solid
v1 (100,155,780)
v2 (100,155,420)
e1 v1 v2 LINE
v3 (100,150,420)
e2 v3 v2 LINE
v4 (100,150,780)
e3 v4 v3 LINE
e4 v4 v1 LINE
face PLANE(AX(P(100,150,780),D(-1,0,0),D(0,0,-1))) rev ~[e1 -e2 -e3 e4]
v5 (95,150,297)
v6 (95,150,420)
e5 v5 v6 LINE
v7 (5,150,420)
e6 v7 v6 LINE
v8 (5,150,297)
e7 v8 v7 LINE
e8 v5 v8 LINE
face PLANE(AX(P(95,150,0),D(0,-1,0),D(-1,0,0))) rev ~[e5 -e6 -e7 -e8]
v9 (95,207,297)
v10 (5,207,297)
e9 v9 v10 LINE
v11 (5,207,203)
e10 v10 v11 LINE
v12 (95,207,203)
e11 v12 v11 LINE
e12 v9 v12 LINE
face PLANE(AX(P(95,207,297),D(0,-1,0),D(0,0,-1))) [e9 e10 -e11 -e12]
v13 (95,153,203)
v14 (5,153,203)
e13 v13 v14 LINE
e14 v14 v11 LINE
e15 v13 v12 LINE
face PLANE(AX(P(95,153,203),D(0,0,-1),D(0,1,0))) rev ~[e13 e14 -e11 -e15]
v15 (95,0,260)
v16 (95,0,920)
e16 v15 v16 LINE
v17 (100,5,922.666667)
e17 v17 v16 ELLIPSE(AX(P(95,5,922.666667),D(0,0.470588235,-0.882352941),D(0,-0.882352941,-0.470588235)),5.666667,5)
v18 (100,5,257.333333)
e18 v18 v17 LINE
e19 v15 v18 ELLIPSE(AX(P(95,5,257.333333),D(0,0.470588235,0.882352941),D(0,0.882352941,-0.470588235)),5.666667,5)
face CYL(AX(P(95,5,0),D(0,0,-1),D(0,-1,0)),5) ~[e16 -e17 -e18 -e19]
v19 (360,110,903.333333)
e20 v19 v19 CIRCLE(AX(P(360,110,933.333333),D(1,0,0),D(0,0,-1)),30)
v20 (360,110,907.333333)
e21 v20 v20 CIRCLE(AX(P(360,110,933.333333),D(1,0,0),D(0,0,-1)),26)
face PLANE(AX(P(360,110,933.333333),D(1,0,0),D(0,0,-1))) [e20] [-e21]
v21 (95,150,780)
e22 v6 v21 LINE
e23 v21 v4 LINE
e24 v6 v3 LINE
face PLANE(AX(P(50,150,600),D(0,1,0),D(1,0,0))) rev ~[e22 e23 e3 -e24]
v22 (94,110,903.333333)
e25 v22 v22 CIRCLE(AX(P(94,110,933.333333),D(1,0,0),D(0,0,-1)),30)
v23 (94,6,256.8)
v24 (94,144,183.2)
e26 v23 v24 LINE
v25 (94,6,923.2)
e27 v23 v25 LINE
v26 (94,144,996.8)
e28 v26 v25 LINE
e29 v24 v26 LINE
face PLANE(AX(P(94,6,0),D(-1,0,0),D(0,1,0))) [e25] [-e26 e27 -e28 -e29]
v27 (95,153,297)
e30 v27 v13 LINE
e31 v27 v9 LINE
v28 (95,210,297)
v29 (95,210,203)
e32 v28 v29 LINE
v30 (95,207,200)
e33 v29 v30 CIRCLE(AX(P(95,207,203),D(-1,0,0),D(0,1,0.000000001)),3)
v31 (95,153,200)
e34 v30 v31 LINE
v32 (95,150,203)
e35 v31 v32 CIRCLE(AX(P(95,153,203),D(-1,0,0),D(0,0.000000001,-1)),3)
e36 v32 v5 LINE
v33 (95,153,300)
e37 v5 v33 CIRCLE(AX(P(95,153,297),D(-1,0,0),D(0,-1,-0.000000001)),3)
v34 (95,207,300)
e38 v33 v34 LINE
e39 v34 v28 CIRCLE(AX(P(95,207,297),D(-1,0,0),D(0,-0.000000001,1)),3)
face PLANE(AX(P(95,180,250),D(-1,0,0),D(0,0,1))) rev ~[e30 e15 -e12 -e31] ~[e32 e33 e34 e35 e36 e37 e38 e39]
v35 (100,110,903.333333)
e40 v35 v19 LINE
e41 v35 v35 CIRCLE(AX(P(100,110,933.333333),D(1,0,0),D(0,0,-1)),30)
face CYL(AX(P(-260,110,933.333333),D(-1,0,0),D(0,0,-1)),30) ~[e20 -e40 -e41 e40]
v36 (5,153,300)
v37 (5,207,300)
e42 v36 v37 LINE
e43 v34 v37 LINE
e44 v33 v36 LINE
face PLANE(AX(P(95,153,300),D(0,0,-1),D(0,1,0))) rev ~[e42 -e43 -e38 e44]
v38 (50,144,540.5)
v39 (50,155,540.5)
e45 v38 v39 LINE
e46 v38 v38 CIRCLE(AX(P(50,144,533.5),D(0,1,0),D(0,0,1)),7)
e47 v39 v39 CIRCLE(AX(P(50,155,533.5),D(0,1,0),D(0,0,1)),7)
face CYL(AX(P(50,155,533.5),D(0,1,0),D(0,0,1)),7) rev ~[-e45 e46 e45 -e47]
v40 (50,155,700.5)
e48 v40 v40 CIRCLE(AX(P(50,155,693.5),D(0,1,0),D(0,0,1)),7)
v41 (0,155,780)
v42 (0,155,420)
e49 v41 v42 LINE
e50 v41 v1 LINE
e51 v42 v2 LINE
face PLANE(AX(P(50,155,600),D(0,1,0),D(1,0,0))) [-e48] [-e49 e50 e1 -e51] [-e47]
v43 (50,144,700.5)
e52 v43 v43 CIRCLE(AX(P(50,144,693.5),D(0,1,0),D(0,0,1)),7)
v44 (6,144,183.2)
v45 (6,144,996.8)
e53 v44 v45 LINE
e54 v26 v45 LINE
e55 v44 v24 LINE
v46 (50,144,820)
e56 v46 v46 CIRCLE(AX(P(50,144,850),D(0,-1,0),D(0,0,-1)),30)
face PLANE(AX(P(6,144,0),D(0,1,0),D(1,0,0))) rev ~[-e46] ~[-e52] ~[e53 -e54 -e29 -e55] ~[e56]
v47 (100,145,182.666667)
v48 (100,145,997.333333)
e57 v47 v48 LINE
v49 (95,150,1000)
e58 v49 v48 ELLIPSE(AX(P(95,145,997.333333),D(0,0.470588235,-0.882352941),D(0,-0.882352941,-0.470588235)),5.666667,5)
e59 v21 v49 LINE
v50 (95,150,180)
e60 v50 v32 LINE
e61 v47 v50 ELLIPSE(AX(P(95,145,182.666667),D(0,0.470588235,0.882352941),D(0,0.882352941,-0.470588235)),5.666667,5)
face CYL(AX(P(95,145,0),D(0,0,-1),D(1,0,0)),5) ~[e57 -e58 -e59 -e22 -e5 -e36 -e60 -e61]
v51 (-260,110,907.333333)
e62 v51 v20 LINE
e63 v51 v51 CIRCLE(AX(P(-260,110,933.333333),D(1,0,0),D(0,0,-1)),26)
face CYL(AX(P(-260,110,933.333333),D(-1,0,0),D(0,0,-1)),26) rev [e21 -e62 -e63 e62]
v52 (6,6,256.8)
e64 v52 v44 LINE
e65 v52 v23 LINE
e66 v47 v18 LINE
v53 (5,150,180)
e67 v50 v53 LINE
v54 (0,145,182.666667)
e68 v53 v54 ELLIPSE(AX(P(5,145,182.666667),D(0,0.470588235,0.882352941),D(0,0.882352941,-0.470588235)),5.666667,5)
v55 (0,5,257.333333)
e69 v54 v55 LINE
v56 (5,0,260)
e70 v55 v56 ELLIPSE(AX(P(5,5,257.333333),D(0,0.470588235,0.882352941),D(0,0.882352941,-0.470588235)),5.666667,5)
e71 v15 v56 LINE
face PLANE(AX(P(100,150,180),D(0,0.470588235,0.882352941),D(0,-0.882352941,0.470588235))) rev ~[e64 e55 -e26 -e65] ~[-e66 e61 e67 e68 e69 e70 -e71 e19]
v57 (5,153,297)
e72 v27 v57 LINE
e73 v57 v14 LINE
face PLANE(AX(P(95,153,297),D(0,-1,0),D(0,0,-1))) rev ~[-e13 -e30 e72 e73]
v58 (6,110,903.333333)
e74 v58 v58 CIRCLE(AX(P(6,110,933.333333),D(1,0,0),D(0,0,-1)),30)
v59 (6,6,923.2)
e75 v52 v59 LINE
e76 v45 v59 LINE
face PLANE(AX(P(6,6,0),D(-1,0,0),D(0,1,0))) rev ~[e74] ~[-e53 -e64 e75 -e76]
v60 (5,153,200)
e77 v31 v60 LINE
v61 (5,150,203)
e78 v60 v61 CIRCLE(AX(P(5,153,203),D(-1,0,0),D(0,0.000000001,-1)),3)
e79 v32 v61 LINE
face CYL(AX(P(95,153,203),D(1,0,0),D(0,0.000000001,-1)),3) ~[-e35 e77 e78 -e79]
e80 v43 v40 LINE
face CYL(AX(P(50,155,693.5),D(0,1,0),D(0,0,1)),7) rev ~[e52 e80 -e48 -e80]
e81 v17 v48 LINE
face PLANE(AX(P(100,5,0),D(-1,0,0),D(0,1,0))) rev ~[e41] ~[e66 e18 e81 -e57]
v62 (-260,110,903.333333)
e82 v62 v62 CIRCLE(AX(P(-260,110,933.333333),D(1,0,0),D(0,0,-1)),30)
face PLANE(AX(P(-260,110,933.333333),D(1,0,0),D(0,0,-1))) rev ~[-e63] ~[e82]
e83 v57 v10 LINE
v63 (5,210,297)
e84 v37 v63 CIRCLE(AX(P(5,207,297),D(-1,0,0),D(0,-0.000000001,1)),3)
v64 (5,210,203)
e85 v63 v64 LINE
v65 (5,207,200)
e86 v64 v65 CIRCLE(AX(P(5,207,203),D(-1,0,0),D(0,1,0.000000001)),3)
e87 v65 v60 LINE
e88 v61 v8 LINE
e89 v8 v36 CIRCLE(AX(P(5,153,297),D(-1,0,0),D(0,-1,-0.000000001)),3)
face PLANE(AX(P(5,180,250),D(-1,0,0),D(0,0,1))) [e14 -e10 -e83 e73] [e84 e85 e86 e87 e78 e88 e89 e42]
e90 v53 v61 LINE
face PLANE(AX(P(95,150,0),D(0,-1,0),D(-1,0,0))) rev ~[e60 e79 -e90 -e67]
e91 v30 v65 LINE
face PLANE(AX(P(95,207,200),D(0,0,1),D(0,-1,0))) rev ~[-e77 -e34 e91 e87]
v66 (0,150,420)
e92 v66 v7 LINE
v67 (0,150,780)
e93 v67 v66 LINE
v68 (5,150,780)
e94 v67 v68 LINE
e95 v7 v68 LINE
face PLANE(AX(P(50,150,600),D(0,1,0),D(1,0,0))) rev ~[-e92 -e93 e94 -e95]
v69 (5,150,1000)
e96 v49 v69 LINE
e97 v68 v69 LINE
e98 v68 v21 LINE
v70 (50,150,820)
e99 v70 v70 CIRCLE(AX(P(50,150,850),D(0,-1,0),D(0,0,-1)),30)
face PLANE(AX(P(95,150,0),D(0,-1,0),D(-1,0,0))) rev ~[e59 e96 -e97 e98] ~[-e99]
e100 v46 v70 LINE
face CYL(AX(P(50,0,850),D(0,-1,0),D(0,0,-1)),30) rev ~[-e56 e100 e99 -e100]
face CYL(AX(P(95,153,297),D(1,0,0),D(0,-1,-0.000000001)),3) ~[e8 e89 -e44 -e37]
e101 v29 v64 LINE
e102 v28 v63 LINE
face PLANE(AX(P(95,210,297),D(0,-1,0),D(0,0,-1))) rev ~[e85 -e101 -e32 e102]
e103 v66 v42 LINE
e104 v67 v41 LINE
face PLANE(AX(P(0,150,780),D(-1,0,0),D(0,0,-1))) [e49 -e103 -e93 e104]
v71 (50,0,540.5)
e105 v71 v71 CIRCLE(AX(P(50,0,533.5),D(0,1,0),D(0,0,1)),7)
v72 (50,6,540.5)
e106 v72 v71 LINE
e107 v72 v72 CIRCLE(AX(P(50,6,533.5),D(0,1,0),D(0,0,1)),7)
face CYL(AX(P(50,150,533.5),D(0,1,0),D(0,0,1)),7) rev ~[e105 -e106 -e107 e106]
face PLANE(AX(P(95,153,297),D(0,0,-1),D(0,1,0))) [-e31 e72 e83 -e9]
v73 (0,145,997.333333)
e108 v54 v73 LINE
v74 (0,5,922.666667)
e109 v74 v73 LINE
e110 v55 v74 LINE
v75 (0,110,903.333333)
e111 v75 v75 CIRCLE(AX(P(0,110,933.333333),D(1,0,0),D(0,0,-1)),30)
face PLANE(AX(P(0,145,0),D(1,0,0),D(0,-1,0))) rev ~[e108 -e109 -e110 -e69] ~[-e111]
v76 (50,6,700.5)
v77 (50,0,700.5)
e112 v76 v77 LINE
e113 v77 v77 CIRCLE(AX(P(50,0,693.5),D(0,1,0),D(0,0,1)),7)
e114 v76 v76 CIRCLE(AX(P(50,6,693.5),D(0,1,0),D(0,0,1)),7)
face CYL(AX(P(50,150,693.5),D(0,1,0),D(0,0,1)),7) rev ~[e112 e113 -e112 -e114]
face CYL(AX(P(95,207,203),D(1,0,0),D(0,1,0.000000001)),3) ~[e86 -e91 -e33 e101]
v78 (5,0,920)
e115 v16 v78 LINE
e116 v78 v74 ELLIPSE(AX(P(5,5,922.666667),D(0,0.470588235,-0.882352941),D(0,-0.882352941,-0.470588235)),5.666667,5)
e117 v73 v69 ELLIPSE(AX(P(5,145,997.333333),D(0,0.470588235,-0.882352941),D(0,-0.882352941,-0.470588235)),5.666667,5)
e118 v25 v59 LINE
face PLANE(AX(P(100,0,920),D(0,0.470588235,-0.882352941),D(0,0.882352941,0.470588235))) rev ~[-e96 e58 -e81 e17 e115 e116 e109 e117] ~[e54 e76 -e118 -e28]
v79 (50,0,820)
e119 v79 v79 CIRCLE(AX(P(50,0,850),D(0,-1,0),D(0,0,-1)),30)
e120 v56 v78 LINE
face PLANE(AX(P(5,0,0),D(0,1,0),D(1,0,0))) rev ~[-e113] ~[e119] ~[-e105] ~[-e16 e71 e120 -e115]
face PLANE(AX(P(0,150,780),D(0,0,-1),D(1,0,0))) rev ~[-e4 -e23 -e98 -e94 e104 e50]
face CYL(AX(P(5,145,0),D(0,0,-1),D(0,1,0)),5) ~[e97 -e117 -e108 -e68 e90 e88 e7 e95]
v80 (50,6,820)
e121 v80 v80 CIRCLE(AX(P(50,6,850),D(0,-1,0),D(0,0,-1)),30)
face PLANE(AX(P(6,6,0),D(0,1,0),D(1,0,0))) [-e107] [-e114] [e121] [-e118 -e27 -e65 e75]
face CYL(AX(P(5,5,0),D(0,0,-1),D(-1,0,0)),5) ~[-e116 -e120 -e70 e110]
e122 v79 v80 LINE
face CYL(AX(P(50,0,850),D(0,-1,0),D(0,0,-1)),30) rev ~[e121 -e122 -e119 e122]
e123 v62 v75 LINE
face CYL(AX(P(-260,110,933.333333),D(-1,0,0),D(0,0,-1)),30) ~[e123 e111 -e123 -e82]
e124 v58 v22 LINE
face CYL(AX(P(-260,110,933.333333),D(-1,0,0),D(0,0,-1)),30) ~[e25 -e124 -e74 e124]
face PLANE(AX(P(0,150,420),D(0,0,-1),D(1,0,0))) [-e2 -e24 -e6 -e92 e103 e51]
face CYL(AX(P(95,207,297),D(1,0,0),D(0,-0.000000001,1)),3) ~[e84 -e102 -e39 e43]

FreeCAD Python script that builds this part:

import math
import FreeCAD as App
import Part
import Sketcher

doc = App.newDocument("Part")
body = doc.addObject("PartDesign::Body", "Body")

sketch1 = body.newObject("Sketcher::SketchObject", "Sketch")
sketch1.AttachmentSupport = (doc.getObject("XY_Plane"), [""])
sketch1.MapMode = "FlatFace"
sketch1.addGeometry([
    Part.LineSegment(App.Vector(5, 0, 0), App.Vector(95, 0, 0)),
    Part.ArcOfCircle(Part.Circle(App.Vector(95, 5, 0), App.Vector(0, 0, 1), 5), math.radians(-90), math.radians(0)),
    Part.LineSegment(App.Vector(100, 5, 0), App.Vector(100, 145, 0)),
    Part.ArcOfCircle(Part.Circle(App.Vector(95, 145, 0), App.Vector(0, 0, 1), 5), math.radians(0), math.radians(90)),
    Part.LineSegment(App.Vector(95, 150, 0), App.Vector(5, 150, 0)),
    Part.ArcOfCircle(Part.Circle(App.Vector(5, 145, 0), App.Vector(0, 0, 1), 5), math.radians(90), math.radians(180)),
    Part.LineSegment(App.Vector(0, 145, 0), App.Vector(0, 5, 0)),
    Part.ArcOfCircle(Part.Circle(App.Vector(5, 5, 0), App.Vector(0, 0, 1), 5), math.radians(180), math.radians(270)),
    Part.LineSegment(App.Vector(94, 6, 0), App.Vector(6, 6, 0)),
    Part.LineSegment(App.Vector(6, 6, 0), App.Vector(6, 144, 0)),
    Part.LineSegment(App.Vector(6, 144, 0), App.Vector(94, 144, 0)),
    Part.LineSegment(App.Vector(94, 144, 0), App.Vector(94, 6, 0)),
], False)
sketch1.addConstraint([
    Sketcher.Constraint("Tangent", 0, 2, 1, 1),
    Sketcher.Constraint("Tangent", 1, 2, 2, 1),
    Sketcher.Constraint("Tangent", 2, 2, 3, 1),
    Sketcher.Constraint("Tangent", 3, 2, 4, 1),
    Sketcher.Constraint("Tangent", 4, 2, 5, 1),
    Sketcher.Constraint("Tangent", 5, 2, 6, 1),
    Sketcher.Constraint("Tangent", 6, 2, 7, 1),
    Sketcher.Constraint("Tangent", 7, 2, 0, 1),
    Sketcher.Constraint("Coincident", 8, 2, 9, 1),
    Sketcher.Constraint("Coincident", 9, 2, 10, 1),
    Sketcher.Constraint("Coincident", 10, 2, 11, 1),
    Sketcher.Constraint("Coincident", 11, 2, 8, 1),
    Sketcher.Constraint("Horizontal", 0),
    Sketcher.Constraint("Vertical", 2),
    Sketcher.Constraint("Horizontal", 4),
    Sketcher.Constraint("Vertical", 6),
    Sketcher.Constraint("Horizontal", 8),
    Sketcher.Constraint("Vertical", 9),
    Sketcher.Constraint("Horizontal", 10),
    Sketcher.Constraint("Vertical", 11),
    Sketcher.Constraint("Equal", 1, 3),
    Sketcher.Constraint("Equal", 3, 5),
    Sketcher.Constraint("Equal", 5, 7),
    Sketcher.Constraint("PointOnObject", 0, 2, -1),
    Sketcher.Constraint("PointOnObject", 5, 2, -2),
    Sketcher.Constraint("Radius", 1, 5.0),
    Sketcher.Constraint("DistanceX", 0, 1, 0, 2, 90.0),
    Sketcher.Constraint("DistanceX", 8, 2, 8, 1, 88.0),
    Sketcher.Constraint("DistanceY", 2, 1, 2, 2, 140.0),
    Sketcher.Constraint("DistanceY", 9, 1, 9, 2, 138.0),
    Sketcher.Constraint("DistanceX", -1, 1, 8, 2, 6.0),
    Sketcher.Constraint("DistanceY", -1, 1, 8, 2, 6.0),
])
pad1 = body.newObject("PartDesign::Pad", "Pad")
pad1.Profile = sketch1
pad1.Length = 1000

sketch2 = body.newObject("Sketcher::SketchObject", "Sketch001")
sketch2.AttachmentSupport = (doc.getObject("YZ_Plane"), [""])
sketch2.MapMode = "FlatFace"
sketch2.AttachmentOffset = App.Placement(App.Vector(0, 0, 100), App.Rotation())
sketch2.addGeometry([
    Part.LineSegment(App.Vector(0, 920, 0), App.Vector(150, 1000, 0)),
    Part.LineSegment(App.Vector(150, 1000, 0), App.Vector(0, 1000, 0)),
    Part.LineSegment(App.Vector(0, 1000, 0), App.Vector(0, 920, 0)),
], False)
sketch2.addConstraint([
    Sketcher.Constraint("Coincident", 0, 2, 1, 1),
    Sketcher.Constraint("Coincident", 1, 2, 2, 1),
    Sketcher.Constraint("Coincident", 2, 2, 0, 1),
    Sketcher.Constraint("Horizontal", 1),
    Sketcher.Constraint("Vertical", 2),
    Sketcher.Constraint("PointOnObject", 1, 2, -2),
    Sketcher.Constraint("DistanceX", 1, 2, 1, 1, 150.0),
    Sketcher.Constraint("DistanceY", 2, 2, 2, 1, 80.0),
    Sketcher.Constraint("DistanceY", -1, 1, 0, 2, 1000.0),
])
pocket1 = body.newObject("PartDesign::Pocket", "Pocket")
pocket1.Profile = sketch2
pocket1.Type = "ThroughAll"

sketch3 = body.newObject("Sketcher::SketchObject", "Sketch002")
sketch3.AttachmentSupport = (doc.getObject("YZ_Plane"), [""])
sketch3.MapMode = "FlatFace"
sketch3.AttachmentOffset = App.Placement(App.Vector(0, 0, 100), App.Rotation())
sketch3.addGeometry([
    Part.LineSegment(App.Vector(150, 180, 0), App.Vector(0, 260, 0)),
    Part.LineSegment(App.Vector(0, 260, 0), App.Vector(0, 0, 0)),
    Part.LineSegment(App.Vector(0, 0, 0), App.Vector(150, 0, 0)),
    Part.LineSegment(App.Vector(150, 0, 0), App.Vector(150, 180, 0)),
], False)
sketch3.addConstraint([
    Sketcher.Constraint("Coincident", 0, 2, 1, 1),
    Sketcher.Constraint("Coincident", 1, 2, 2, 1),
    Sketcher.Constraint("Coincident", 2, 2, 3, 1),
    Sketcher.Constraint("Coincident", 3, 2, 0, 1),
    Sketcher.Constraint("Vertical", 1),
    Sketcher.Constraint("Horizontal", 2),
    Sketcher.Constraint("Vertical", 3),
    Sketcher.Constraint("Coincident", 1, 2, -1, 1),
    Sketcher.Constraint("DistanceX", 2, 1, 2, 2, 150.0),
    Sketcher.Constraint("DistanceY", 1, 2, 1, 1, 260.0),
    Sketcher.Constraint("DistanceY", 3, 1, 3, 2, 180.0),
])
pocket2 = body.newObject("PartDesign::Pocket", "Pocket001")
pocket2.Profile = sketch3
pocket2.Type = "ThroughAll"

sketch4 = body.newObject("Sketcher::SketchObject", "Sketch003")
sketch4.AttachmentSupport = (doc.getObject("XZ_Plane"), [""])
sketch4.MapMode = "FlatFace"
sketch4.addGeometry(Part.Circle(App.Vector(50, 850, 0), App.Vector(0, 0, 1), 30), False)
sketch4.addConstraint([
    Sketcher.Constraint("Diameter", 0, 60.0),
    Sketcher.Constraint("DistanceX", -1, 1, 0, 3, 50.0),
    Sketcher.Constraint("DistanceY", -1, 1, 0, 3, 850.0),
])
pocket3 = body.newObject("PartDesign::Pocket", "Pocket002")
pocket3.Profile = sketch4
pocket3.Type = "ThroughAll"

sketch5 = body.newObject("Sketcher::SketchObject", "Sketch004")
sketch5.AttachmentSupport = (doc.getObject("XZ_Plane"), [""])
sketch5.MapMode = "FlatFace"
sketch5.AttachmentOffset = App.Placement(App.Vector(0, 0, -150), App.Rotation())
sketch5.addGeometry([
    Part.Circle(App.Vector(50, 694, 0), App.Vector(0, 0, 1), 7),
    Part.Circle(App.Vector(50, 534, 0), App.Vector(0, 0, 1), 7),
], False)
sketch5.addConstraint([
    Sketcher.Constraint("Equal", 0, 1),
    Sketcher.Constraint("Vertical", 0, 3, 1, 3),
    Sketcher.Constraint("Diameter", 0, 14.0),
    Sketcher.Constraint("DistanceX", -1, 1, 0, 3, 50.0),
    Sketcher.Constraint("DistanceY", 1, 3, 0, 3, 160.0),
    Sketcher.Constraint("DistanceY", -1, 1, 0, 3, 693.5),
])
pocket4 = body.newObject("PartDesign::Pocket", "Pocket003")
pocket4.Profile = sketch5
pocket4.Type = "ThroughAll"
pocket4.Reversed = True

sketch6 = body.newObject("Sketcher::SketchObject", "Sketch005")
sketch6.AttachmentSupport = (doc.getObject("XZ_Plane"), [""])
sketch6.MapMode = "FlatFace"
sketch6.AttachmentOffset = App.Placement(App.Vector(0, 0, -150), App.Rotation())
sketch6.addGeometry([
    Part.LineSegment(App.Vector(0, 420, 0), App.Vector(0, 780, 0)),
    Part.LineSegment(App.Vector(0, 780, 0), App.Vector(100, 780, 0)),
    Part.LineSegment(App.Vector(100, 780, 0), App.Vector(100, 420, 0)),
    Part.LineSegment(App.Vector(100, 420, 0), App.Vector(0, 420, 0)),
], False)
sketch6.addConstraint([
    Sketcher.Constraint("Coincident", 0, 2, 1, 1),
    Sketcher.Constraint("Coincident", 1, 2, 2, 1),
    Sketcher.Constraint("Coincident", 2, 2, 3, 1),
    Sketcher.Constraint("Coincident", 3, 2, 0, 1),
    Sketcher.Constraint("Vertical", 0),
    Sketcher.Constraint("Horizontal", 1),
    Sketcher.Constraint("Vertical", 2),
    Sketcher.Constraint("Horizontal", 3),
    Sketcher.Constraint("PointOnObject", 0, 2, -2),
    Sketcher.Constraint("DistanceX", 1, 1, 1, 2, 100.0),
    Sketcher.Constraint("DistanceY", 0, 1, 0, 2, 360.0),
    Sketcher.Constraint("DistanceY", -1, 1, 0, 2, 780.0),
])
pad2 = body.newObject("PartDesign::Pad", "Pad001")
pad2.Profile = sketch6
pad2.Length = 5
pad2.Reversed = True

sketch7 = body.newObject("Sketcher::SketchObject", "Sketch006")
sketch7.AttachmentSupport = (doc.getObject("XZ_Plane"), [""])
sketch7.MapMode = "FlatFace"
sketch7.AttachmentOffset = App.Placement(App.Vector(0, 0, -155), App.Rotation())
sketch7.addGeometry([
    Part.Circle(App.Vector(50, 534, 0), App.Vector(0, 0, 1), 7),
    Part.Circle(App.Vector(50, 694, 0), App.Vector(0, 0, 1), 7),
], False)
sketch7.addConstraint([
    Sketcher.Constraint("Equal", 0, 1),
    Sketcher.Constraint("Vertical", 0, 3, 1, 3),
    Sketcher.Constraint("Diameter", 0, 14.0),
    Sketcher.Constraint("DistanceX", -1, 1, 0, 3, 50.0),
    Sketcher.Constraint("DistanceY", 0, 3, 1, 3, 160.0),
    Sketcher.Constraint("DistanceY", -1, 1, 0, 3, 533.5),
])
pocket5 = body.newObject("PartDesign::Pocket", "Pocket004")
pocket5.Profile = sketch7
pocket5.Type = "ThroughAll"
pocket5.Reversed = True

sketch8 = body.newObject("Sketcher::SketchObject", "Sketch007")
sketch8.AttachmentSupport = (doc.getObject("YZ_Plane"), [""])
sketch8.MapMode = "FlatFace"
sketch8.AttachmentOffset = App.Placement(App.Vector(0, 0, 100), App.Rotation())
sketch8.addGeometry(Part.Circle(App.Vector(110, 933, 0), App.Vector(0, 0, 1), 30), False)
sketch8.addConstraint([
    Sketcher.Constraint("Diameter", 0, 60.0),
    Sketcher.Constraint("DistanceX", -1, 1, 0, 3, 110.0),
    Sketcher.Constraint("DistanceY", -1, 1, 0, 3, 933.333333),
])
pocket6 = body.newObject("PartDesign::Pocket", "Pocket005")
pocket6.Profile = sketch8
pocket6.Type = "ThroughAll"

sketch9 = body.newObject("Sketcher::SketchObject", "Sketch008")
sketch9.AttachmentSupport = (doc.getObject("YZ_Plane"), [""])
sketch9.MapMode = "FlatFace"
sketch9.AttachmentOffset = App.Placement(App.Vector(0, 0, 100), App.Rotation())
sketch9.addGeometry([
    Part.Circle(App.Vector(110, 933, 0), App.Vector(0, 0, 1), 30),
    Part.Circle(App.Vector(110, 933, 0), App.Vector(0, 0, 1), 26),
], False)
sketch9.addConstraint([
    Sketcher.Constraint("Coincident", 1, 3, 0, 3),
    Sketcher.Constraint("Diameter", 0, 60.0),
    Sketcher.Constraint("Diameter", 1, 52.0),
    Sketcher.Constraint("DistanceX", -1, 1, 0, 3, 110.0),
    Sketcher.Constraint("DistanceY", -1, 1, 0, 3, 933.333333),
])
pad3 = body.newObject("PartDesign::Pad", "Pad002")
pad3.Profile = sketch9
pad3.Type = "TwoLengths"
pad3.Length = 260
pad3.Length2 = 360

sketch10 = body.newObject("Sketcher::SketchObject", "Sketch009")
sketch10.AttachmentSupport = (doc.getObject("YZ_Plane"), [""])
sketch10.MapMode = "FlatFace"
sketch10.AttachmentOffset = App.Placement(App.Vector(0, 0, 95), App.Rotation())
sketch10.addGeometry([
    Part.LineSegment(App.Vector(210, 203, 0), App.Vector(210, 297, 0)),
    Part.ArcOfCircle(Part.Circle(App.Vector(207, 297, 0), App.Vector(0, 0, 1), 3), math.radians(0), math.radians(90)),
    Part.LineSegment(App.Vector(207, 300, 0), App.Vector(153, 300, 0)),
    Part.ArcOfCircle(Part.Circle(App.Vector(153, 297, 0), App.Vector(0, 0, 1), 3), math.radians(90), math.radians(180)),
    Part.LineSegment(App.Vector(150, 297, 0), App.Vector(150, 203, 0)),
    Part.ArcOfCircle(Part.Circle(App.Vector(153, 203, 0), App.Vector(0, 0, 1), 3), math.radians(180), math.radians(270)),
    Part.LineSegment(App.Vector(153, 200, 0), App.Vector(207, 200, 0)),
    Part.ArcOfCircle(Part.Circle(App.Vector(207, 203, 0), App.Vector(0, 0, 1), 3), math.radians(-90), math.radians(0)),
    Part.LineSegment(App.Vector(153, 297, 0), App.Vector(207, 297, 0)),
    Part.LineSegment(App.Vector(207, 297, 0), App.Vector(207, 203, 0)),
    Part.LineSegment(App.Vector(207, 203, 0), App.Vector(153, 203, 0)),
    Part.LineSegment(App.Vector(153, 203, 0), App.Vector(153, 297, 0)),
], False)
sketch10.addConstraint([
    Sketcher.Constraint("Tangent", 0, 2, 1, 1),
    Sketcher.Constraint("Tangent", 1, 2, 2, 1),
    Sketcher.Constraint("Tangent", 2, 2, 3, 1),
    Sketcher.Constraint("Tangent", 3, 2, 4, 1),
    Sketcher.Constraint("Tangent", 4, 2, 5, 1),
    Sketcher.Constraint("Tangent", 5, 2, 6, 1),
    Sketcher.Constraint("Tangent", 6, 2, 7, 1),
    Sketcher.Constraint("Tangent", 7, 2, 0, 1),
    Sketcher.Constraint("Coincident", 8, 2, 9, 1),
    Sketcher.Constraint("Coincident", 9, 2, 10, 1),
    Sketcher.Constraint("Coincident", 10, 2, 11, 1),
    Sketcher.Constraint("Coincident", 11, 2, 8, 1),
    Sketcher.Constraint("Vertical", 0),
    Sketcher.Constraint("Horizontal", 2),
    Sketcher.Constraint("Vertical", 4),
    Sketcher.Constraint("Horizontal", 6),
    Sketcher.Constraint("Horizontal", 8),
    Sketcher.Constraint("Vertical", 9),
    Sketcher.Constraint("Horizontal", 10),
    Sketcher.Constraint("Vertical", 11),
    Sketcher.Constraint("Coincident", 8, 2, 1, 3),
    Sketcher.Constraint("Coincident", 9, 2, 7, 3),
    Sketcher.Constraint("Coincident", 10, 2, 5, 3),
    Sketcher.Constraint("Equal", 1, 3),
    Sketcher.Constraint("Radius", 1, 3.0),
    Sketcher.Constraint("DistanceX", 2, 2, 2, 1, 54.0),
    Sketcher.Constraint("DistanceY", 0, 1, 0, 2, 94.0),
    Sketcher.Constraint("DistanceX", -1, 1, 1, 3, 207.0),
    Sketcher.Constraint("DistanceY", -1, 1, 1, 3, 297.0),
])
pad4 = body.newObject("PartDesign::Pad", "Pad003")
pad4.Profile = sketch10
pad4.Length = 90
pad4.Reversed = True

doc.recompute()
